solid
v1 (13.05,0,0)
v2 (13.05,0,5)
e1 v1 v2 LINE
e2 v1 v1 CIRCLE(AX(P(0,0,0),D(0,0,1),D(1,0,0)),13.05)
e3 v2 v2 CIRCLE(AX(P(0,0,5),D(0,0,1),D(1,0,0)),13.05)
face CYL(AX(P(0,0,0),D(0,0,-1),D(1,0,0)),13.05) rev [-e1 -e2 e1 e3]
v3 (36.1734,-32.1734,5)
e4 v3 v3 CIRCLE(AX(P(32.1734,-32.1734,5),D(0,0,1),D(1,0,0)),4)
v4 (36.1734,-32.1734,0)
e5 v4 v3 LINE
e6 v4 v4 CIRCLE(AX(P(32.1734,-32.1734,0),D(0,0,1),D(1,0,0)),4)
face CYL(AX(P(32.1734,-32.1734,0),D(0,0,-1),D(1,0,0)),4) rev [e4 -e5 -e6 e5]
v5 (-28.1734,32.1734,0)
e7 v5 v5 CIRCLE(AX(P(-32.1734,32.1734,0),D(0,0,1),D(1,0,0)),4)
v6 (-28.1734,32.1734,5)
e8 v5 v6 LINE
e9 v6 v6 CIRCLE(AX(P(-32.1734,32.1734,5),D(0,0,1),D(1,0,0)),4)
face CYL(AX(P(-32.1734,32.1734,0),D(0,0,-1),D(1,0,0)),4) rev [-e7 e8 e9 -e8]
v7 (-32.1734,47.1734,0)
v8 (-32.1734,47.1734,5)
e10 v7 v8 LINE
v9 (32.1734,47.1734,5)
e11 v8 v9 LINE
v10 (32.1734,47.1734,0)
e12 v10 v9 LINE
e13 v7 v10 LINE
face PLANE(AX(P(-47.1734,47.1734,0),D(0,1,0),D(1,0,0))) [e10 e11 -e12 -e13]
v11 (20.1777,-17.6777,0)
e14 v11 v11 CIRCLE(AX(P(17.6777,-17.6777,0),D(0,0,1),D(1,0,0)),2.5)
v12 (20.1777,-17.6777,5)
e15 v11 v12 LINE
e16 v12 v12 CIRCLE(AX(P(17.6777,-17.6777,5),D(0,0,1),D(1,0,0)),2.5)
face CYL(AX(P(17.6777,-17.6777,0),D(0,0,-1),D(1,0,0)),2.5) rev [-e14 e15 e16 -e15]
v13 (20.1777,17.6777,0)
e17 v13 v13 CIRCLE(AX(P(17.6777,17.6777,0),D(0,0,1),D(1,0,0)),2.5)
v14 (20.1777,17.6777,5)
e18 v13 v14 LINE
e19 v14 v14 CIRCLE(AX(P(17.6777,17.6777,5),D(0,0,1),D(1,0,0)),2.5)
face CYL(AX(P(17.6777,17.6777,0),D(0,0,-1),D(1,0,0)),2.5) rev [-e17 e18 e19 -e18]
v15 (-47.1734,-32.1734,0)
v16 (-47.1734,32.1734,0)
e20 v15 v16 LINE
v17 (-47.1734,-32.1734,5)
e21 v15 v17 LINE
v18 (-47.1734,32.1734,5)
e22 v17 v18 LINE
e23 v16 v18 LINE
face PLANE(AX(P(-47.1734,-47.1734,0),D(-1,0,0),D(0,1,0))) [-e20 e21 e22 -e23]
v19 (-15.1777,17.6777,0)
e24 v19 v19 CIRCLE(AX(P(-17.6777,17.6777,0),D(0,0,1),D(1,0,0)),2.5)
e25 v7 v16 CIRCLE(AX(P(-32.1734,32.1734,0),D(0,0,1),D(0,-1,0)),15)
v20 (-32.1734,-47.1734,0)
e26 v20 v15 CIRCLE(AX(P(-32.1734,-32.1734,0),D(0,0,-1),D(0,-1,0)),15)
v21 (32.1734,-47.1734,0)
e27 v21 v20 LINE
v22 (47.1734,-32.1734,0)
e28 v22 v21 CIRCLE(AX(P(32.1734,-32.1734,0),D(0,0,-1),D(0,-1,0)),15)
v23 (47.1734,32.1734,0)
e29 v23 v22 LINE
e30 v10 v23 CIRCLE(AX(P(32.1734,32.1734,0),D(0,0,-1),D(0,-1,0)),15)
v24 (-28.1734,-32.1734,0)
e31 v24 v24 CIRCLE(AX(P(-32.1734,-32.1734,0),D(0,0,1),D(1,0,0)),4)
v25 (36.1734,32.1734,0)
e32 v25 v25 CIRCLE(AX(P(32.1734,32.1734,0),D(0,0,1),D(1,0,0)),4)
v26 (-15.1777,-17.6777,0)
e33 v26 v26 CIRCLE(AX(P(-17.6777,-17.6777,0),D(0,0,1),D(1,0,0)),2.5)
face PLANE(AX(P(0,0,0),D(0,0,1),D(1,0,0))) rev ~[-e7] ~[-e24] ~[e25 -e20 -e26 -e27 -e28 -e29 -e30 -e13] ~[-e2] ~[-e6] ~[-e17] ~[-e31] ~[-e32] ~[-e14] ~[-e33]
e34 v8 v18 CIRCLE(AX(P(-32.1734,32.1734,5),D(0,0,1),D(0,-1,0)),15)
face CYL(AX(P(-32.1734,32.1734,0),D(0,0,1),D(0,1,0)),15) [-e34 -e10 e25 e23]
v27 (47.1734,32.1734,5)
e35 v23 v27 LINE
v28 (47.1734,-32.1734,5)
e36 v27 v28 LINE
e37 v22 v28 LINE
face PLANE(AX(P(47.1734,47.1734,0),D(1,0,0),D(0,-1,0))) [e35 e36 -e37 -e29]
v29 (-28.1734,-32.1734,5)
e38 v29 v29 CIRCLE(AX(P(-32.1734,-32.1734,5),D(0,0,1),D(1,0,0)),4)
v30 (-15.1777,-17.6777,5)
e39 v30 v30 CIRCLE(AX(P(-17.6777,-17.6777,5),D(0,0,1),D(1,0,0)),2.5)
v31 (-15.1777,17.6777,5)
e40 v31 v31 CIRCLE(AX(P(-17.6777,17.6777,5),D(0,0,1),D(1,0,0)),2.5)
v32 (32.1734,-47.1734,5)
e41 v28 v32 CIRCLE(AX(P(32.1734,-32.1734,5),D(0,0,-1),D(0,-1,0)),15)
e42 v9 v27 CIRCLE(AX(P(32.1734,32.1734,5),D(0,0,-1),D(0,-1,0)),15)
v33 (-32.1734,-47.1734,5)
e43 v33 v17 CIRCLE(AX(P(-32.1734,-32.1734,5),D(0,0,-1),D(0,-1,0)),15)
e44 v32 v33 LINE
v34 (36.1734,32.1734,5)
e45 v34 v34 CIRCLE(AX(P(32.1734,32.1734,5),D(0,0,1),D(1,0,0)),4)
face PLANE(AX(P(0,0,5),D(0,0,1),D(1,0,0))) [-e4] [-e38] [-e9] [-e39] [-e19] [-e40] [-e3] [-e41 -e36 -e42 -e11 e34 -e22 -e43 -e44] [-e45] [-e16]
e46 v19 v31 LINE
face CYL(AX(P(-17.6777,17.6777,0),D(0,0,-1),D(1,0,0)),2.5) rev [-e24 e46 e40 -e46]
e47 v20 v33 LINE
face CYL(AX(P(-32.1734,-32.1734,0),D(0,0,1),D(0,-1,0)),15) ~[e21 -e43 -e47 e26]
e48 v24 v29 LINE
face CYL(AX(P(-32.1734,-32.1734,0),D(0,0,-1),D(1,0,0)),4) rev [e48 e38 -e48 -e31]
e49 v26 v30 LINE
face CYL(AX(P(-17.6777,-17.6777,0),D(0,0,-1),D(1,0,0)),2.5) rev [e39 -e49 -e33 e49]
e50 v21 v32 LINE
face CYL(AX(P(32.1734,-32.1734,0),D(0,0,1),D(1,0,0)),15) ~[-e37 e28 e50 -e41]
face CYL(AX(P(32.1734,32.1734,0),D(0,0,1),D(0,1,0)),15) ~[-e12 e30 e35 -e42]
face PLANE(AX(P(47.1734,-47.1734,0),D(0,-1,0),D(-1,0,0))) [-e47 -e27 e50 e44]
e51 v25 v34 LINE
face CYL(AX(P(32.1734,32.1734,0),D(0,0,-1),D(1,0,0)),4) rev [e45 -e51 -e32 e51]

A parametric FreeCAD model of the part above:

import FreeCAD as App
import Part
import Sketcher


def edges_at(feature, points):
    """Names of the edges that pass closest to the given points."""
    edges = feature.Shape.Edges
    near = lambda p: min(range(len(edges)), key=lambda i: edges[i].distToShape(Part.Vertex(*p))[0])
    return sorted({f"Edge{near(p) + 1}" for p in points})


def add_polygon(sketch, points):
    """Adds a closed chain of lines whose ends are joined by coincident constraints."""
    first, n = sketch.GeometryCount, len(points)
    for a, b in zip(points, points[1:] + points[:1]):
        sketch.addGeometry(Part.LineSegment(App.Vector(*a, 0), App.Vector(*b, 0)), False)
    for i in range(n):
        sketch.addConstraint(Sketcher.Constraint("Coincident", first + i, 2, first + (i + 1) % n, 1))

doc = App.newDocument("Part")
params = doc.addObject("Spreadsheet::Sheet", "Params")
for row, (alias, value) in enumerate([
    ("sketch1_diameter", "8 mm"),
    ("sketch1_diameter2", "5 mm"),
    ("sketch1_diameter3", "26.1 mm"),
    ("pad1_length", "5 mm"),
    ("fillet_radius", "15 mm"),
], start=1):
    params.set(f"A{row}", alias)
    params.set(f"B{row}", "=" + value)
    params.setAlias(f"B{row}", alias)

body = doc.addObject("PartDesign::Body", "Body")

sketch1 = body.newObject("Sketcher::SketchObject", "Sketch")
sketch1.AttachmentSupport = (doc.getObject("XY_Plane"), [""])
sketch1.MapMode = "FlatFace"
add_polygon(sketch1, [(47.1734, 47.1734), (-47.1734, 47.1734), (-47.1734, -47.1734), (47.1734, -47.1734)])
sketch1.addGeometry(Part.Circle(App.Vector(-32.1734, -32.1734, 0), App.Vector(0, 0, 1), 4), False)
sketch1.addGeometry(Part.Circle(App.Vector(-17.6777, -17.6777, 0), App.Vector(0, 0, 1), 2.5), False)
sketch1.addGeometry(Part.Circle(App.Vector(32.1734, -32.1734, 0), App.Vector(0, 0, 1), 4), False)
sketch1.addGeometry(Part.Circle(App.Vector(17.6777, -17.6777, 0), App.Vector(0, 0, 1), 2.5), False)
sketch1.addGeometry(Part.Circle(App.Vector(-17.6777, 17.6777, 0), App.Vector(0, 0, 1), 2.5), False)
sketch1.addGeometry(Part.Circle(App.Vector(-32.1734, 32.1734, 0), App.Vector(0, 0, 1), 4), False)
sketch1.addGeometry(Part.Circle(App.Vector(0, 0, 0), App.Vector(0, 0, 1), 13.05), False)
sketch1.addGeometry(Part.Circle(App.Vector(17.6777, 17.6777, 0), App.Vector(0, 0, 1), 2.5), False)
sketch1.addGeometry(Part.Circle(App.Vector(32.1734, 32.1734, 0), App.Vector(0, 0, 1), 4), False)
sketch1.addConstraint(Sketcher.Constraint("Horizontal", 0))
sketch1.addConstraint(Sketcher.Constraint("Vertical", 1))
sketch1.addConstraint(Sketcher.Constraint("Horizontal", 2))
sketch1.addConstraint(Sketcher.Constraint("Vertical", 3))
sketch1.addConstraint(Sketcher.Constraint("Coincident", 10, 3, -1, 1))
sketch1.addConstraint(Sketcher.Constraint("Equal", 4, 6))
sketch1.addConstraint(Sketcher.Constraint("Equal", 5, 7))
sketch1.addConstraint(Sketcher.Constraint("Equal", 7, 8))
sketch1.addConstraint(Sketcher.Constraint("Equal", 6, 9))
sketch1.addConstraint(Sketcher.Constraint("Equal", 8, 11))
sketch1.addConstraint(Sketcher.Constraint("Equal", 9, 12))
sketch1.addConstraint(Sketcher.Constraint("Symmetric", 7, 3, 8, 3, -1, 1))
sketch1.addConstraint(Sketcher.Constraint("Symmetric", 6, 3, 9, 3, -1, 1))
sketch1.addConstraint(Sketcher.Constraint("Symmetric", 5, 3, 11, 3, -1, 1))
sketch1.addConstraint(Sketcher.Constraint("Symmetric", 4, 3, 12, 3, -1, 1))
sketch1.addConstraint(Sketcher.Constraint("Symmetric", 0, 2, 2, 2, -1, 1))
sketch1.addConstraint(Sketcher.Constraint("Symmetric", 4, 3, 6, 3, -2))
sketch1.addConstraint(Sketcher.Constraint("Symmetric", 5, 3, 7, 3, -2))
sketch1.addConstraint(Sketcher.Constraint("Equal", 2, 1))
sketch1.addConstraint(Sketcher.Constraint("Diameter", 4, 8.0))
sketch1.addConstraint(Sketcher.Constraint("Diameter", 5, 5.0))
sketch1.addConstraint(Sketcher.Constraint("Diameter", 10, 26.1))
sketch1.addConstraint(Sketcher.Constraint("DistanceX", 0, 2, 9, 3, 15.0))
sketch1.addConstraint(Sketcher.Constraint("DistanceY", 9, 3, 0, 2, 15.0))
sketch1.addConstraint(Sketcher.Constraint("DistanceX", 0, 2, 0, 1, 94.3468))
sketch1.addConstraint(Sketcher.Constraint("DistanceX", 5, 3, 6, 3, 49.851))
sketch1.addConstraint(Sketcher.Constraint("DistanceY", 4, 3, 8, 3, 49.851))
sketch1.setExpression("Constraints[23]", "Params.sketch1_diameter")
sketch1.setExpression("Constraints[24]", "Params.sketch1_diameter2")
sketch1.setExpression("Constraints[25]", "Params.sketch1_diameter3")
pad1 = body.newObject("PartDesign::Pad", "Pad")
pad1.Profile = sketch1
pad1.setExpression("Length", "Params.pad1_length")
doc.recompute()

fillet = body.newObject("PartDesign::Fillet", "Fillet")
fillet.Base = (pad1, edges_at(pad1, [
    (47.173, -47.173, 2.5),
    (47.173, 47.173, 2.5),
    (-47.173, -47.173, 2.5),
    (-47.173, 47.173, 2.5),
]))
fillet.setExpression("Radius", "Params.fillet_radius")

doc.recompute()
